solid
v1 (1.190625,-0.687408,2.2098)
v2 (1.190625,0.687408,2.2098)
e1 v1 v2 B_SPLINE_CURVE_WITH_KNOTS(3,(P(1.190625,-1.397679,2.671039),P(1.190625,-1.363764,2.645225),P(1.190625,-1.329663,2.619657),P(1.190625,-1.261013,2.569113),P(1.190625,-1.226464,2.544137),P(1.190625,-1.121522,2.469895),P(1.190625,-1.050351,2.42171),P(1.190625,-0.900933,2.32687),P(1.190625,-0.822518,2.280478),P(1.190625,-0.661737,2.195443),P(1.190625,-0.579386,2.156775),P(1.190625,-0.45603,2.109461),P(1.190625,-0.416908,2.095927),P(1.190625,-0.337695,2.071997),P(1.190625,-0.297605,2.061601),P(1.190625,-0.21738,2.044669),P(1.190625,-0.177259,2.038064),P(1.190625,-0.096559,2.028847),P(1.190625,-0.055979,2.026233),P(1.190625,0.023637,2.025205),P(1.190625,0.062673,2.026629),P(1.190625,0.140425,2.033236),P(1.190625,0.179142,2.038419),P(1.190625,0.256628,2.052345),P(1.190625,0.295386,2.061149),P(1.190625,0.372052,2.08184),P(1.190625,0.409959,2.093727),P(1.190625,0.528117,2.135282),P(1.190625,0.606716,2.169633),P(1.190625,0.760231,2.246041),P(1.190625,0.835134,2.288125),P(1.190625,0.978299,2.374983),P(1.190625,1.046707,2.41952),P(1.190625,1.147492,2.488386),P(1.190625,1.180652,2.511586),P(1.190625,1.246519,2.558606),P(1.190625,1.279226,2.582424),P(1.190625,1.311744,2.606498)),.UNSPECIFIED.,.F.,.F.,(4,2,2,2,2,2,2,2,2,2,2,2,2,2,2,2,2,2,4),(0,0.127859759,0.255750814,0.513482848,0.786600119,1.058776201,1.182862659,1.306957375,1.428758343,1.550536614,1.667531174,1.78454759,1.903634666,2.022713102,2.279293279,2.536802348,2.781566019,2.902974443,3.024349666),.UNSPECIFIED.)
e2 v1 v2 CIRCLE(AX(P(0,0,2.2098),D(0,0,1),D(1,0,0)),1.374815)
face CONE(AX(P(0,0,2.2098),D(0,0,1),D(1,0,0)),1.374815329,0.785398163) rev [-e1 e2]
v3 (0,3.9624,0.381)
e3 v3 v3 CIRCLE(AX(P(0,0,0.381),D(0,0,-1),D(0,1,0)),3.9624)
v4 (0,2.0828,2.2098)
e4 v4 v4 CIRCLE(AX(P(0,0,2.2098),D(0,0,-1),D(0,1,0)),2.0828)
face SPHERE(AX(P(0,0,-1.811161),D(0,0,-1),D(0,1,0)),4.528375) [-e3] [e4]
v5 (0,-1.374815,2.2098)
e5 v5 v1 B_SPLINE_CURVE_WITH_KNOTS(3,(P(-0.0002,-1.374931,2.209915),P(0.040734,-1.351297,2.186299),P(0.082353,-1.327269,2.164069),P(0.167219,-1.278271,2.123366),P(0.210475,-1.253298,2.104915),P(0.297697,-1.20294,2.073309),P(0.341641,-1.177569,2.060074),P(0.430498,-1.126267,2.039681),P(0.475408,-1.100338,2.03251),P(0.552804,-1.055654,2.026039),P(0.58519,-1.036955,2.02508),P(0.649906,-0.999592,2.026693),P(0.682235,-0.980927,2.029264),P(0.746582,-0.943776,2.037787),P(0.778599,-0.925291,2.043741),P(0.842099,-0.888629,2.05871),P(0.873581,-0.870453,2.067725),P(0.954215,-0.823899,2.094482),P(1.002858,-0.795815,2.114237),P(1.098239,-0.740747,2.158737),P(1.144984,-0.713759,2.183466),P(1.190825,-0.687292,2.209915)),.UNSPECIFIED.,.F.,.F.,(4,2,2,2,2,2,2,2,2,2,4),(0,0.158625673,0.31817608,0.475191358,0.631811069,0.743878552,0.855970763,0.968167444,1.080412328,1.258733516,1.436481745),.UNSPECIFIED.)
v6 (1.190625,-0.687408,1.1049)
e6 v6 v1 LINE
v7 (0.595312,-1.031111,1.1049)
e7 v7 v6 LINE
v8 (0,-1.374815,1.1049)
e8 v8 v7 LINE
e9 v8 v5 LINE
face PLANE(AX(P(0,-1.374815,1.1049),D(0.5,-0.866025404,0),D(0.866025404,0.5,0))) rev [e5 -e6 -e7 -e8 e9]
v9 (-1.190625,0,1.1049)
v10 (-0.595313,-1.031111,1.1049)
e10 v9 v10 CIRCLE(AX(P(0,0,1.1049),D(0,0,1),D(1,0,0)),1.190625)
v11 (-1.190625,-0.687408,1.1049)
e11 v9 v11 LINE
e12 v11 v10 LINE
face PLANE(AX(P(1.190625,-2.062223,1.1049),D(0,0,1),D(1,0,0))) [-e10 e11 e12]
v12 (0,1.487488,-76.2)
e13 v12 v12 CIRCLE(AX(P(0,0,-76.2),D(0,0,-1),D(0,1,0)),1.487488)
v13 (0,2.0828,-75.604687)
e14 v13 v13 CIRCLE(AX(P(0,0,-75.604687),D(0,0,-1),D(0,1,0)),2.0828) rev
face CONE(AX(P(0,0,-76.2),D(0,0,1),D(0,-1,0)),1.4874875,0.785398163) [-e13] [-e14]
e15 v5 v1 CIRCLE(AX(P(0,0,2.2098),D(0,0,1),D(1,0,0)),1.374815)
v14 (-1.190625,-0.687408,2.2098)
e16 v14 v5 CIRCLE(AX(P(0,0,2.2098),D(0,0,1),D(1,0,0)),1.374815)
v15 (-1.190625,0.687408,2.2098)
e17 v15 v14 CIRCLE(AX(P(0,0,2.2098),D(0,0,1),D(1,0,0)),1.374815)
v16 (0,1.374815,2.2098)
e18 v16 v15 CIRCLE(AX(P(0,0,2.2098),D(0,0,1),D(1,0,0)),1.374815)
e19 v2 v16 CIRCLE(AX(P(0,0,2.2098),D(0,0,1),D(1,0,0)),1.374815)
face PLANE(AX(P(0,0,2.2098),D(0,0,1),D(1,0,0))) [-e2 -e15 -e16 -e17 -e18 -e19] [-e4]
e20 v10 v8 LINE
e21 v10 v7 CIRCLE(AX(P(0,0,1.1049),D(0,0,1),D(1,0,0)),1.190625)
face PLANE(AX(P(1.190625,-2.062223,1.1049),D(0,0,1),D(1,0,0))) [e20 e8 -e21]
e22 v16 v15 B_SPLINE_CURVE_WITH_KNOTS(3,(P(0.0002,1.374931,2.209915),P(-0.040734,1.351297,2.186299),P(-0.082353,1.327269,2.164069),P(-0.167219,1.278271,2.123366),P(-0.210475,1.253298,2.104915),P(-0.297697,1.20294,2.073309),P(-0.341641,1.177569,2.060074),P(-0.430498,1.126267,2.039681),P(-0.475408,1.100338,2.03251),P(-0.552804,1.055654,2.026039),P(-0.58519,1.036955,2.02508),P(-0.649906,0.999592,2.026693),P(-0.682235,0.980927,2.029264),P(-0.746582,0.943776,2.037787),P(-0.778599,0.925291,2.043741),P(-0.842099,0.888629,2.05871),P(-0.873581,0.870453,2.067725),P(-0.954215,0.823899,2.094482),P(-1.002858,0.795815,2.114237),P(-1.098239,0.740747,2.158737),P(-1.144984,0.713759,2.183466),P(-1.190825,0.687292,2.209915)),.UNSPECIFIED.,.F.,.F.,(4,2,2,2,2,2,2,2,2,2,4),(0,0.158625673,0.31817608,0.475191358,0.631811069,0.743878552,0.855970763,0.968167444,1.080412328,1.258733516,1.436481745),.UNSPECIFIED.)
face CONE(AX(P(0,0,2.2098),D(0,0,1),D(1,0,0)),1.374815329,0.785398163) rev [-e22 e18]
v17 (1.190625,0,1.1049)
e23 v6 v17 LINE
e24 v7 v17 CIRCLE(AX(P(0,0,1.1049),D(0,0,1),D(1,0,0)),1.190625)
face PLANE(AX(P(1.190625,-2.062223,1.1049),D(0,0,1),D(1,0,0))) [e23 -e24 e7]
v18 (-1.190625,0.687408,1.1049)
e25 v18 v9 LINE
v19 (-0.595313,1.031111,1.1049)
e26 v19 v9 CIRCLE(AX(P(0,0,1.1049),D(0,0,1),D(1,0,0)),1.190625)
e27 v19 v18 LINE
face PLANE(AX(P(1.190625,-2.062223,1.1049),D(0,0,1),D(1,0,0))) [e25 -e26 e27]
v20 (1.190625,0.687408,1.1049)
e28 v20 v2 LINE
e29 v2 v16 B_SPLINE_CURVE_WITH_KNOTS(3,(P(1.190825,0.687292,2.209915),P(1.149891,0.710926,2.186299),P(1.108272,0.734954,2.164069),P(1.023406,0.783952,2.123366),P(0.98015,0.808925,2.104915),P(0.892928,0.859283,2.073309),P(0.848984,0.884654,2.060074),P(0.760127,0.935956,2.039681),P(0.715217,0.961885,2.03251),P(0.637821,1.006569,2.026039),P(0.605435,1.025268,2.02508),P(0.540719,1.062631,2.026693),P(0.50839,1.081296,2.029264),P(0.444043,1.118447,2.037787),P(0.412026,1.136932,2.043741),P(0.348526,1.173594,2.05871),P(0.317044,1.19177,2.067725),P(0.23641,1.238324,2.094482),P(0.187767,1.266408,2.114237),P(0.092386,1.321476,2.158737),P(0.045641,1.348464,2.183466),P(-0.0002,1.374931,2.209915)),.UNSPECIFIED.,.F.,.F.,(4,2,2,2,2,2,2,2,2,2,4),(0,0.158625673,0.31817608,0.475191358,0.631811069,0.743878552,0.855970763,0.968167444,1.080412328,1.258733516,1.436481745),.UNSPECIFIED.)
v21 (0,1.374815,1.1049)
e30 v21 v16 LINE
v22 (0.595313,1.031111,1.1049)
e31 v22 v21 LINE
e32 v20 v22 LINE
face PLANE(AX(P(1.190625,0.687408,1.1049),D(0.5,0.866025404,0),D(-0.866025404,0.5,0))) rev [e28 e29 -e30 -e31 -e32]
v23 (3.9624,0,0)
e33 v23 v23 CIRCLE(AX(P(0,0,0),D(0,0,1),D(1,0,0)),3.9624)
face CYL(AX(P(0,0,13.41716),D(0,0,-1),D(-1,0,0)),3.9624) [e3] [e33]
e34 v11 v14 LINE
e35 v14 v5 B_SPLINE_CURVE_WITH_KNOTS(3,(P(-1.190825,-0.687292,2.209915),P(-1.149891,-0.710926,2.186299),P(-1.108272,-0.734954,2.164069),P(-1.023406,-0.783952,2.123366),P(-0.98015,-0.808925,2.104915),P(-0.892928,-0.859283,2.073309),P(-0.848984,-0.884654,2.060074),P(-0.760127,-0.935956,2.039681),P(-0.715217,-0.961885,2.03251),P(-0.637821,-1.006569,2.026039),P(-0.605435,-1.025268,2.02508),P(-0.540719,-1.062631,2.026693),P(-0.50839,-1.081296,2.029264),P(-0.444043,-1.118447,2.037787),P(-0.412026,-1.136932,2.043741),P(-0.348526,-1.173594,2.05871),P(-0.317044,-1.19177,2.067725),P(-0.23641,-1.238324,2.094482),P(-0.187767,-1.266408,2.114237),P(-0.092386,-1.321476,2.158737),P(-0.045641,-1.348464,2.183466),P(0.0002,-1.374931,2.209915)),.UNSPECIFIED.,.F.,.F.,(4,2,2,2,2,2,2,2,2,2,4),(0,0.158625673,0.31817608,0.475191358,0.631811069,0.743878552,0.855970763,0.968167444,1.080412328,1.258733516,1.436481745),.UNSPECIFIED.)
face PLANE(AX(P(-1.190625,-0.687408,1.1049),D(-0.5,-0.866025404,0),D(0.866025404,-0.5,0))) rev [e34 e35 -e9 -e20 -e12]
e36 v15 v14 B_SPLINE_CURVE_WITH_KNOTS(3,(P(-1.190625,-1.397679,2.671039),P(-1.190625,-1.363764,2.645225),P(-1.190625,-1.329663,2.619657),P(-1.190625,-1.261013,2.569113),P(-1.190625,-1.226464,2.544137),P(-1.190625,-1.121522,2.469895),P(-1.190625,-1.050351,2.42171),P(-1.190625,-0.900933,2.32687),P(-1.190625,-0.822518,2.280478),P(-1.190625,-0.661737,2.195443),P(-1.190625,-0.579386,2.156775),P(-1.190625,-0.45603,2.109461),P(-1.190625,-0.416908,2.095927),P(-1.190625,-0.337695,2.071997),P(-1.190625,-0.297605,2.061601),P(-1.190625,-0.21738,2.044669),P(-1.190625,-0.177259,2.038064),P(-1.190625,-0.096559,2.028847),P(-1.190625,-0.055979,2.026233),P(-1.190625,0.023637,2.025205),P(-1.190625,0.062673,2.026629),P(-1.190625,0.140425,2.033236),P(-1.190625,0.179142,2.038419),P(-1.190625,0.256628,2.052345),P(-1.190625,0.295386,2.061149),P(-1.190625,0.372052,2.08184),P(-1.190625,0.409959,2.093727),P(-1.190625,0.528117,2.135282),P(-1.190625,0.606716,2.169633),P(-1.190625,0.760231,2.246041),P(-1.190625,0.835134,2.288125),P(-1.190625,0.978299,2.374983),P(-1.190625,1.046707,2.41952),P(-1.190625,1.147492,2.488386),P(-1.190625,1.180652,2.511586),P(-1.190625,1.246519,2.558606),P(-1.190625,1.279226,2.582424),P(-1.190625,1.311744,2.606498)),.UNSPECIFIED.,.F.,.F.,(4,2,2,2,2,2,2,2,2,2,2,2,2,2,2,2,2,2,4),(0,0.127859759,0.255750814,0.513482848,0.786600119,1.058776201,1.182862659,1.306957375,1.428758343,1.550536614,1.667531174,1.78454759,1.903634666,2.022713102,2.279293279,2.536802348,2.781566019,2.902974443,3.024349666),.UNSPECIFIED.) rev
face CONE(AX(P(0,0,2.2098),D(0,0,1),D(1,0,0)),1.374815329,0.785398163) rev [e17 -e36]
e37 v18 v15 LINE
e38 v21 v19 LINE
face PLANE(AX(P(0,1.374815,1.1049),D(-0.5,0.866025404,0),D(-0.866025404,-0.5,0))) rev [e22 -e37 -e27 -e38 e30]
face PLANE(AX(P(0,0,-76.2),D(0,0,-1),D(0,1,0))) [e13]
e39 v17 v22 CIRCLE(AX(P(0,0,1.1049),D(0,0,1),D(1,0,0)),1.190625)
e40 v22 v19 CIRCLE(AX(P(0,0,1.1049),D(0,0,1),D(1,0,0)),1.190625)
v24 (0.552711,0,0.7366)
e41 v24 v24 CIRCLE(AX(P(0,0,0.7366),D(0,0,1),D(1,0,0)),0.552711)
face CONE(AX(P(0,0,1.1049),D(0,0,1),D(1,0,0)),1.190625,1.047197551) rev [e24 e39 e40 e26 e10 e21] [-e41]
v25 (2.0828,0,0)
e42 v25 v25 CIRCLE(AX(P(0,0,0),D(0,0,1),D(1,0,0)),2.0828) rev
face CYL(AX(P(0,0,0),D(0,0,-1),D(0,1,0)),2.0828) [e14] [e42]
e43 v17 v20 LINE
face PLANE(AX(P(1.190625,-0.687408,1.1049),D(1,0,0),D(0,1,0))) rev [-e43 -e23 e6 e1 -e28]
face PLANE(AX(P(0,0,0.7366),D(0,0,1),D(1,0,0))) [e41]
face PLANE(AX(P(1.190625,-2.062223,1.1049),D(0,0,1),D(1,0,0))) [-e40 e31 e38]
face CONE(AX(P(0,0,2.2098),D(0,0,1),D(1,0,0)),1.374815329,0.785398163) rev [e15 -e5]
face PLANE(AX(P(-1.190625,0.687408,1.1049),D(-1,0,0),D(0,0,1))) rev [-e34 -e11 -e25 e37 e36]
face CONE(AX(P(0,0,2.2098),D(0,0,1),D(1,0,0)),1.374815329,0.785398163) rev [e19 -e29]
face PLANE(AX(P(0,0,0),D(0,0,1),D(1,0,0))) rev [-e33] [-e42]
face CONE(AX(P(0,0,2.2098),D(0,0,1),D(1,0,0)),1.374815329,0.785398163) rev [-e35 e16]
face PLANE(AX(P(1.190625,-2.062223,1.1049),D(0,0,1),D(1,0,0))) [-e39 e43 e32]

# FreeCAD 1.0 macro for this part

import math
import FreeCAD as App
import Part
import Sketcher
Q = App.Units.Quantity


def edges_at(feature, points):
    """Names of the edges that pass closest to the given points."""
    edges = feature.Shape.Edges
    near = lambda p: min(range(len(edges)), key=lambda i: edges[i].distToShape(Part.Vertex(*p))[0])
    return sorted({f"Edge{near(p) + 1}" for p in points})

doc = App.newDocument("Part")
body = doc.addObject("PartDesign::Body", "Body")

# Sketch on YZ plane
sketch1 = body.newObject("Sketcher::SketchObject", "Sketch")
sketch1.AttachmentSupport = (doc.getObject("YZ_Plane"), [""])
sketch1.MapMode = "FlatFace"
sketch1.addGeometry(Part.LineSegment(App.Vector(2.1, 0, 0), App.Vector(0, 0, 0)), False)
sketch1.addGeometry(Part.LineSegment(App.Vector(0, 0, 0), App.Vector(0, -76.2, 0)), False)
sketch1.addGeometry(Part.LineSegment(App.Vector(0, -76.2, 0), App.Vector(2.1, -76.2, 0)), False)
sketch1.addGeometry(Part.LineSegment(App.Vector(2.1, -76.2, 0), App.Vector(2.1, 0, 0)), False)
sketch1.addConstraint(Sketcher.Constraint("Coincident", 0, 2, 1, 1))
sketch1.addConstraint(Sketcher.Constraint("Coincident", 1, 2, 2, 1))
sketch1.addConstraint(Sketcher.Constraint("Coincident", 2, 2, 3, 1))
sketch1.addConstraint(Sketcher.Constraint("Coincident", 3, 2, 0, 1))
sketch1.addConstraint(Sketcher.Constraint("Horizontal", 0))
sketch1.addConstraint(Sketcher.Constraint("Vertical", 1))
sketch1.addConstraint(Sketcher.Constraint("Horizontal", 2))
sketch1.addConstraint(Sketcher.Constraint("Vertical", 3))
sketch1.addConstraint(Sketcher.Constraint("Coincident", 0, 2, -1, 1))
sketch1.addConstraint(Sketcher.Constraint("DistanceY", 1, 2, 1, 1, Q("3 in")))
sketch1.addConstraint(Sketcher.Constraint("DistanceX", 0, 2, 0, 1, Q("0.082 in")))
revolution = body.newObject("PartDesign::Revolution", "Revolution")
revolution.Profile = sketch1
revolution.ReferenceAxis = (sketch1, ["V_Axis"])
revolution.Angle = 360
doc.recompute()

chamfer = body.newObject("PartDesign::Chamfer", "Chamfer")
chamfer.Base = (revolution, edges_at(revolution, [(0, -2.083, -76.2)]))
chamfer.Size = 0.595313

# Sketch on XY plane
sketch2 = body.newObject("Sketcher::SketchObject", "Sketch001")
sketch2.AttachmentSupport = (doc.getObject("XY_Plane"), [""])
sketch2.MapMode = "FlatFace"
sketch2.addGeometry(Part.Circle(App.Vector(0, 0, 0), App.Vector(0, 0, 1), 4), False)
sketch2.addConstraint(Sketcher.Constraint("Coincident", 0, 3, -1, 1))
sketch2.addConstraint(Sketcher.Constraint("Diameter", 0, Q("0.312 in")))
pad1 = body.newObject("PartDesign::Pad", "Pad")
pad1.Profile = sketch2
pad1.Length = Q("0.087 in")

# Sketch on YZ plane
sketch3 = body.newObject("Sketcher::SketchObject", "Sketch002")
sketch3.AttachmentSupport = (doc.getObject("YZ_Plane"), [""])
sketch3.MapMode = "FlatFace"
sketch3.addGeometry(Part.LineSegment(App.Vector(3.96, 0.38, 0), App.Vector(3.96, 0, 0)), False)
sketch3.addGeometry(Part.LineSegment(App.Vector(3.96, 0, 0), App.Vector(4.34, 0, 0)), False)
sketch3.addGeometry(Part.LineSegment(App.Vector(4.34, 0, 0), App.Vector(4.34, 2.59, 0)), False)
sketch3.addGeometry(Part.LineSegment(App.Vector(4.34, 2.59, 0), App.Vector(2.08, 2.59, 0)), False)
sketch3.addGeometry(Part.LineSegment(App.Vector(2.08, 2.59, 0), App.Vector(2.08, 2.21, 0)), False)
sketch3.addGeometry(Part.ArcOfCircle(Part.Circle(App.Vector(0, -1.81, 0), App.Vector(0, 0, 1), 4.53), math.radians(29), math.radians(63)), False)
sketch3.addConstraint(Sketcher.Constraint("Coincident", 0, 2, 1, 1))
sketch3.addConstraint(Sketcher.Constraint("Coincident", 1, 2, 2, 1))
sketch3.addConstraint(Sketcher.Constraint("Coincident", 2, 2, 3, 1))
sketch3.addConstraint(Sketcher.Constraint("Coincident", 3, 2, 4, 1))
sketch3.addConstraint(Sketcher.Constraint("Coincident", 4, 2, 5, 2))
sketch3.addConstraint(Sketcher.Constraint("Coincident", 5, 1, 0, 1))
sketch3.addConstraint(Sketcher.Constraint("Vertical", 0))
sketch3.addConstraint(Sketcher.Constraint("Horizontal", 1))
sketch3.addConstraint(Sketcher.Constraint("Vertical", 2))
sketch3.addConstraint(Sketcher.Constraint("Horizontal", 3))
sketch3.addConstraint(Sketcher.Constraint("Vertical", 4))
sketch3.addConstraint(Sketcher.Constraint("PointOnObject", 5, 3, -2))
sketch3.addConstraint(Sketcher.Constraint("PointOnObject", 0, 2, -1))
sketch3.addConstraint(Sketcher.Constraint("Equal", 1, 0))
sketch3.addConstraint(Sketcher.Constraint("Equal", 0, 4))
sketch3.addConstraint(Sketcher.Constraint("DistanceX", 1, 1, 1, 2, Q("0.015 in")))
sketch3.addConstraint(Sketcher.Constraint("DistanceX", 3, 2, 3, 1, Q("0.089 in")))
sketch3.addConstraint(Sketcher.Constraint("DistanceY", 2, 1, 2, 2, Q("0.102 in")))
sketch3.addConstraint(Sketcher.Constraint("DistanceX", -1, 1, 0, 2, Q("0.156 in")))
groove = body.newObject("PartDesign::Groove", "Groove")
groove.Profile = sketch3
groove.ReferenceAxis = (sketch3, ["V_Axis"])
groove.Angle = 360

# Sketch on XY plane
sketch4 = body.newObject("Sketcher::SketchObject", "Sketch003")
sketch4.AttachmentSupport = (doc.getObject("XY_Plane"), [""])
sketch4.MapMode = "FlatFace"
sketch4.AttachmentOffset = App.Placement(App.Vector(0, 0, 0.087 * 25.4), App.Rotation())
sketch4.addGeometry(Part.LineSegment(App.Vector(0, -1.4, 0), App.Vector(1.2, -0.7, 0)), False)
sketch4.addGeometry(Part.LineSegment(App.Vector(1.2, -0.7, 0), App.Vector(1.2, 0.7, 0)), False)
sketch4.addGeometry(Part.LineSegment(App.Vector(1.2, 0.7, 0), App.Vector(0, 1.4, 0)), False)
sketch4.addGeometry(Part.LineSegment(App.Vector(0, 1.4, 0), App.Vector(-1.2, 0.7, 0)), False)
sketch4.addGeometry(Part.LineSegment(App.Vector(-1.2, 0.7, 0), App.Vector(-1.2, -0.7, 0)), False)
sketch4.addGeometry(Part.LineSegment(App.Vector(-1.2, -0.7, 0), App.Vector(0, -1.4, 0)), False)
sketch4.addConstraint(Sketcher.Constraint("Coincident", 0, 2, 1, 1))
sketch4.addConstraint(Sketcher.Constraint("Coincident", 1, 2, 2, 1))
sketch4.addConstraint(Sketcher.Constraint("Coincident", 2, 2, 3, 1))
sketch4.addConstraint(Sketcher.Constraint("Coincident", 3, 2, 4, 1))
sketch4.addConstraint(Sketcher.Constraint("Coincident", 4, 2, 5, 1))
sketch4.addConstraint(Sketcher.Constraint("Coincident", 5, 2, 0, 1))
sketch4.addConstraint(Sketcher.Constraint("Vertical", 1))
sketch4.addConstraint(Sketcher.Constraint("Vertical", 4))
sketch4.addConstraint(Sketcher.Constraint("Symmetric", 0, 2, 3, 2, -1, 1))
sketch4.addConstraint(Sketcher.Constraint("Symmetric", 2, 2, 5, 2, -1, 1))
sketch4.addConstraint(Sketcher.Constraint("PointOnObject", 2, 2, -2))
sketch4.addConstraint(Sketcher.Constraint("Parallel", 2, 5))
sketch4.addConstraint(Sketcher.Constraint("Horizontal", 1, 2, 3, 2))
sketch4.addConstraint(Sketcher.Constraint("Angle", 0, Q("30 deg")))
sketch4.addConstraint(Sketcher.Constraint("DistanceX", -1, 1, 0, 2, Q("0.046875 in")))
sketch4.addConstraint(Sketcher.Constraint("DistanceY", 1, 1, 1, 2, Q("1.374815 mm")))
pocket1 = body.newObject("PartDesign::Pocket", "Pocket")
pocket1.Profile = sketch4
pocket1.Length = Q("0.0435 in")

# Sketch on XY plane
sketch5 = body.newObject("Sketcher::SketchObject", "Sketch004")
sketch5.AttachmentSupport = (doc.getObject("XY_Plane"), [""])
sketch5.MapMode = "FlatFace"
sketch5.AttachmentOffset = App.Placement(App.Vector(0, 0, 0.087 * 25.4), App.Rotation())
sketch5.addGeometry(Part.Circle(App.Vector(0, 0, 0), App.Vector(0, 0, 1), 1.4), False)
sketch5.addConstraint(Sketcher.Constraint("Coincident", 0, 3, -1, 1))
sketch5.addConstraint(Sketcher.Constraint("Diameter", 0, Q("2.749631 mm")))
pocket2 = body.newObject("PartDesign::Pocket", "Pocket001")
pocket2.Profile = sketch5
pocket2.Length = Q("0.0435 in")
pocket2.TaperAngle = -45

# Sketch on XY plane
sketch6 = body.newObject("Sketcher::SketchObject", "Sketch005")
sketch6.AttachmentSupport = (doc.getObject("XY_Plane"), [""])
sketch6.MapMode = "FlatFace"
sketch6.AttachmentOffset = App.Placement(App.Vector(0, 0, 0.0435 * 25.4), App.Rotation())
sketch6.addGeometry(Part.Circle(App.Vector(0, 0, 0), App.Vector(0, 0, 1), 1.2), False)
sketch6.addConstraint(Sketcher.Constraint("Coincident", 0, 3, -1, 1))
sketch6.addConstraint(Sketcher.Constraint("Diameter", 0, Q("0.09375 in")))
pocket3 = body.newObject("PartDesign::Pocket", "Pocket002")
pocket3.Profile = sketch6
pocket3.Length = Q("0.0145 in")
pocket3.TaperAngle = -60

doc.recompute()
